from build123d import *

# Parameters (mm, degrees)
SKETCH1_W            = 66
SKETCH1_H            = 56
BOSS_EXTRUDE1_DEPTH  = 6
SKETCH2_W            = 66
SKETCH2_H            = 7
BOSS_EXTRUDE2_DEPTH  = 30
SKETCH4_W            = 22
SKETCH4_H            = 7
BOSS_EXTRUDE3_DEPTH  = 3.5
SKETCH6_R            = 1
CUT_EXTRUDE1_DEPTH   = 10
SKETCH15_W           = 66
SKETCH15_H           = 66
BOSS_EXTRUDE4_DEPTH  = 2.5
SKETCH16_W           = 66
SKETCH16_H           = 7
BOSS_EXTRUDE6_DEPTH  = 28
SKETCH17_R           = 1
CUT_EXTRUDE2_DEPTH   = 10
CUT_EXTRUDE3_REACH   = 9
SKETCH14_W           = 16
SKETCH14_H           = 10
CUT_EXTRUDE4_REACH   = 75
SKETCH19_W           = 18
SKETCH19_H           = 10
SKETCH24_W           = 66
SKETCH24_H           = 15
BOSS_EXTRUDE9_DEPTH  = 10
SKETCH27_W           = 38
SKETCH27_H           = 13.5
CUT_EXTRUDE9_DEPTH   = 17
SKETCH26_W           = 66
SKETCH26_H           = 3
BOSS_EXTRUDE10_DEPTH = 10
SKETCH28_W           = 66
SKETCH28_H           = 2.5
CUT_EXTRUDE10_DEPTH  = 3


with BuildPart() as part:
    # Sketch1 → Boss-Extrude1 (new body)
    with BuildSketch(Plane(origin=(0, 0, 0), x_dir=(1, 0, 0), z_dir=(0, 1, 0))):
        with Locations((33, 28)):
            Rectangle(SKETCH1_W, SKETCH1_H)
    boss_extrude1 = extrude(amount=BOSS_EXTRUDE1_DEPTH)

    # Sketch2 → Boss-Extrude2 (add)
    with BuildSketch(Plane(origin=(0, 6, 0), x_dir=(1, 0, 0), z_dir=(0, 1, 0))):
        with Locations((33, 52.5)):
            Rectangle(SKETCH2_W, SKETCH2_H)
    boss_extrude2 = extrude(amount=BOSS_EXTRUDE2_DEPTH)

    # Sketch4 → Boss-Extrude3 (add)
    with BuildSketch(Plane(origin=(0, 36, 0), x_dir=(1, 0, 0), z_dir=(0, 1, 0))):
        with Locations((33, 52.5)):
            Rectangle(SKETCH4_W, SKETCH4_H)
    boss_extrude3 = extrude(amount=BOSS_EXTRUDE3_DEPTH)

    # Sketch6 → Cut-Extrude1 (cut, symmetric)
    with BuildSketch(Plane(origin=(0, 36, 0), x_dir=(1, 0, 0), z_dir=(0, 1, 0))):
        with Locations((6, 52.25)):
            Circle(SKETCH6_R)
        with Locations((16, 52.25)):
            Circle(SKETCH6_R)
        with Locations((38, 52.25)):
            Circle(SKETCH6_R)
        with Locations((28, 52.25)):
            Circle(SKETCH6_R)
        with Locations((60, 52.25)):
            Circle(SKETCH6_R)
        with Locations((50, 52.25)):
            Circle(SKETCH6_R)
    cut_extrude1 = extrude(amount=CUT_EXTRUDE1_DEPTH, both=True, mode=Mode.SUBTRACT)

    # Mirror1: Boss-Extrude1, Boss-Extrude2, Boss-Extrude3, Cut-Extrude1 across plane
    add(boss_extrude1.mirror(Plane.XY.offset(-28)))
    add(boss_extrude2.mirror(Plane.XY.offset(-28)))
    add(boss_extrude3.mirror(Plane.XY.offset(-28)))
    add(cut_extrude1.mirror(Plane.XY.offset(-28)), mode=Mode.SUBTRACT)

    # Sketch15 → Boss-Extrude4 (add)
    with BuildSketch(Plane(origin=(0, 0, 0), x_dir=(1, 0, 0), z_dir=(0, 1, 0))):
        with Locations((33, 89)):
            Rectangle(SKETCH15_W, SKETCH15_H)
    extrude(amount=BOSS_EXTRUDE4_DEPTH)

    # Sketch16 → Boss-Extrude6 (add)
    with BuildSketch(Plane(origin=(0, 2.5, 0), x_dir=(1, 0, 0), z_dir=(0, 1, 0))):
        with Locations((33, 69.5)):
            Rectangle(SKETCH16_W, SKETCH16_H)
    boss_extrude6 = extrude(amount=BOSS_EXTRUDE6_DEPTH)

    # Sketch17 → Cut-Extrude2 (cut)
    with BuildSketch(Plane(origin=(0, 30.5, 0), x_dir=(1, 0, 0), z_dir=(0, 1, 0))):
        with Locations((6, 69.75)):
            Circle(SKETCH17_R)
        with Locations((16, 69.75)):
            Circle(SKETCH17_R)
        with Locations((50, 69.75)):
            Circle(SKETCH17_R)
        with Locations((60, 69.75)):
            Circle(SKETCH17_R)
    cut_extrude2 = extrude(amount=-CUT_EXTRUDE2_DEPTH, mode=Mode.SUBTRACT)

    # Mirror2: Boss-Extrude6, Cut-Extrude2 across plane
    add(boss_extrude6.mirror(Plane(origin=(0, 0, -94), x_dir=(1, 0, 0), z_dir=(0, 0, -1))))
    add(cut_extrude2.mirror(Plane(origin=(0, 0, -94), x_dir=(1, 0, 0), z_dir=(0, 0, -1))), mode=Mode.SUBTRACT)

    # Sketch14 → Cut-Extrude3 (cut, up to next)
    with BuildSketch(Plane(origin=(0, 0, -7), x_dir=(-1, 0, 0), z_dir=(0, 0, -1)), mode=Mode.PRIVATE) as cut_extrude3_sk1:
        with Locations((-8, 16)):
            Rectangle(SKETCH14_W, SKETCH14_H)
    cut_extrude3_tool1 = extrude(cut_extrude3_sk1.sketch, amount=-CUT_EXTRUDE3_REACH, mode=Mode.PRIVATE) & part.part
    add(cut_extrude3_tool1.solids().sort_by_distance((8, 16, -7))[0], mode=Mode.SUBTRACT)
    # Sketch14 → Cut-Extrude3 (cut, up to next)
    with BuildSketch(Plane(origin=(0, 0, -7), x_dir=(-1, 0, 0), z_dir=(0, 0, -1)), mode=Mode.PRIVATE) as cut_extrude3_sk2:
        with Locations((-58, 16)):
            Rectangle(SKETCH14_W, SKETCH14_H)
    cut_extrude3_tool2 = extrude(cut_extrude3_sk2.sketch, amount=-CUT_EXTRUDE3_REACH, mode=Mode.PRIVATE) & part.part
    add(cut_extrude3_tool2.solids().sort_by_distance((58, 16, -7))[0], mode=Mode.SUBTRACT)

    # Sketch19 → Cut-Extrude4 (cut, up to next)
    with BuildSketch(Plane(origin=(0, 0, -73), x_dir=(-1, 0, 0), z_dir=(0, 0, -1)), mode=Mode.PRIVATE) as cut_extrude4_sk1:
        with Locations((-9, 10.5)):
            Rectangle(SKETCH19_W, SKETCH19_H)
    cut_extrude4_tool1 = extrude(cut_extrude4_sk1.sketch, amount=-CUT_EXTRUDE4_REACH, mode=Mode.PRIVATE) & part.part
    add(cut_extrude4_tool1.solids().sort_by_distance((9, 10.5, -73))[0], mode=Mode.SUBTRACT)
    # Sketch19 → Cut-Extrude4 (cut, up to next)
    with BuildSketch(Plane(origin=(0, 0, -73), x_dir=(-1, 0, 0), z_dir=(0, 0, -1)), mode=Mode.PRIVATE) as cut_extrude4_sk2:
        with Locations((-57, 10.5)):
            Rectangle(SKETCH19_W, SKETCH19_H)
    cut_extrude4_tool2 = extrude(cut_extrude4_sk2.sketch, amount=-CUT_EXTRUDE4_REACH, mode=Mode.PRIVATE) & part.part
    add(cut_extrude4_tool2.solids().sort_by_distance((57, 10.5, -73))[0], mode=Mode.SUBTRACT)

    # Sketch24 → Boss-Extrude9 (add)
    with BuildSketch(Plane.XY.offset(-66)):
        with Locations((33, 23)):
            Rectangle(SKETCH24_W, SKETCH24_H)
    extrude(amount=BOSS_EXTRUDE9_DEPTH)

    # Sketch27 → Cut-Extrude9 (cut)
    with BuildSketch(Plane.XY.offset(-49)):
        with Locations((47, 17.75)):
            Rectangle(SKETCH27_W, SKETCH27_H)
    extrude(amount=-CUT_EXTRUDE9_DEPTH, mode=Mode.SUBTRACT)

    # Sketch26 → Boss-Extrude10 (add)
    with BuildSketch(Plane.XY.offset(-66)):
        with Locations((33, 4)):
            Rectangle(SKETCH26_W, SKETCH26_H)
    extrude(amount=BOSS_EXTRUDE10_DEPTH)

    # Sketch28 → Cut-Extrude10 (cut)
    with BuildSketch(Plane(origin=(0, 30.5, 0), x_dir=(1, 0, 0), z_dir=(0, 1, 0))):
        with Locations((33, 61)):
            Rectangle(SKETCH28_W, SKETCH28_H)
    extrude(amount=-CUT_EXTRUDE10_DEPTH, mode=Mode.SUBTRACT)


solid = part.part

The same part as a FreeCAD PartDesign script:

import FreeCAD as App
import Part
import Sketcher

doc = App.newDocument("Part")
body = doc.addObject("PartDesign::Body", "Body")

sketch1 = doc.addObject("Sketcher::SketchObject", "Sketch")
body.addObject(sketch1)
sketch1.AttachmentSupport = (doc.XZ_Plane, [""])
sketch1.MapMode = "FlatFace"
sketch1.addGeometry([
    Part.LineSegment(App.Vector(0, -56, 0), App.Vector(0, 0, 0)),
    Part.LineSegment(App.Vector(0, 0, 0), App.Vector(66, 0, 0)),
    Part.LineSegment(App.Vector(66, 0, 0), App.Vector(66, -56, 0)),
    Part.LineSegment(App.Vector(66, -56, 0), App.Vector(0, -56, 0)),
], False)
sketch1.addConstraint([
    Sketcher.Constraint("Coincident", 0, 2, 1, 1),
    Sketcher.Constraint("Coincident", 1, 2, 2, 1),
    Sketcher.Constraint("Coincident", 2, 2, 3, 1),
    Sketcher.Constraint("Coincident", 3, 2, 0, 1),
    Sketcher.Constraint("Vertical", 0),
    Sketcher.Constraint("Horizontal", 1),
    Sketcher.Constraint("Vertical", 2),
    Sketcher.Constraint("Horizontal", 3),
    Sketcher.Constraint("Coincident", 0, 2, -1, 1),
    Sketcher.Constraint("DistanceX", 1, 1, 1, 2, 66.0),
    Sketcher.Constraint("DistanceY", 0, 1, 0, 2, 56.0),
])
pad1 = doc.addObject("PartDesign::Pad", "Pad")
body.addObject(pad1)
pad1.Profile = sketch1
pad1.Length = 6
pad1.Reversed = True

sketch2 = doc.addObject("Sketcher::SketchObject", "Sketch001")
body.addObject(sketch2)
sketch2.AttachmentSupport = (doc.XZ_Plane, [""])
sketch2.MapMode = "FlatFace"
sketch2.AttachmentOffset = App.Placement(App.Vector(0, 0, -6), App.Rotation())
sketch2.addGeometry([
    Part.LineSegment(App.Vector(0, -56, 0), App.Vector(0, -49, 0)),
    Part.LineSegment(App.Vector(0, -49, 0), App.Vector(66, -49, 0)),
    Part.LineSegment(App.Vector(66, -49, 0), App.Vector(66, -56, 0)),
    Part.LineSegment(App.Vector(66, -56, 0), App.Vector(0, -56, 0)),
], False)
sketch2.addConstraint([
    Sketcher.Constraint("Coincident", 0, 2, 1, 1),
    Sketcher.Constraint("Coincident", 1, 2, 2, 1),
    Sketcher.Constraint("Coincident", 2, 2, 3, 1),
    Sketcher.Constraint("Coincident", 3, 2, 0, 1),
    Sketcher.Constraint("Vertical", 0),
    Sketcher.Constraint("Horizontal", 1),
    Sketcher.Constraint("Vertical", 2),
    Sketcher.Constraint("Horizontal", 3),
    Sketcher.Constraint("PointOnObject", 0, 2, -2),
    Sketcher.Constraint("DistanceX", 1, 1, 1, 2, 66.0),
    Sketcher.Constraint("DistanceY", 0, 1, 0, 2, 7.0),
    Sketcher.Constraint("DistanceY", 0, 2, -1, 1, 49.0),
])
pad2 = doc.addObject("PartDesign::Pad", "Pad001")
body.addObject(pad2)
pad2.Profile = sketch2
pad2.Length = 30
pad2.Reversed = True

sketch3 = doc.addObject("Sketcher::SketchObject", "Sketch002")
body.addObject(sketch3)
sketch3.AttachmentSupport = (doc.XZ_Plane, [""])
sketch3.MapMode = "FlatFace"
sketch3.AttachmentOffset = App.Placement(App.Vector(0, 0, -36), App.Rotation())
sketch3.addGeometry([
    Part.LineSegment(App.Vector(22, -56, 0), App.Vector(22, -49, 0)),
    Part.LineSegment(App.Vector(22, -49, 0), App.Vector(44, -49, 0)),
    Part.LineSegment(App.Vector(44, -49, 0), App.Vector(44, -56, 0)),
    Part.LineSegment(App.Vector(44, -56, 0), App.Vector(22, -56, 0)),
], False)
sketch3.addConstraint([
    Sketcher.Constraint("Coincident", 0, 2, 1, 1),
    Sketcher.Constraint("Coincident", 1, 2, 2, 1),
    Sketcher.Constraint("Coincident", 2, 2, 3, 1),
    Sketcher.Constraint("Coincident", 3, 2, 0, 1),
    Sketcher.Constraint("Vertical", 0),
    Sketcher.Constraint("Horizontal", 1),
    Sketcher.Constraint("Vertical", 2),
    Sketcher.Constraint("Horizontal", 3),
    Sketcher.Constraint("DistanceX", 1, 1, 1, 2, 22.0),
    Sketcher.Constraint("DistanceY", 0, 1, 0, 2, 7.0),
    Sketcher.Constraint("DistanceX", -1, 1, 0, 2, 22.0),
    Sketcher.Constraint("DistanceY", 0, 2, -1, 1, 49.0),
])
pad3 = doc.addObject("PartDesign::Pad", "Pad002")
body.addObject(pad3)
pad3.Profile = sketch3
pad3.Length = 3.5
pad3.Reversed = True

sketch4 = doc.addObject("Sketcher::SketchObject", "Sketch003")
body.addObject(sketch4)
sketch4.AttachmentSupport = (doc.XZ_Plane, [""])
sketch4.MapMode = "FlatFace"
sketch4.AttachmentOffset = App.Placement(App.Vector(0, 0, -36), App.Rotation())
sketch4.addGeometry([
    Part.Circle(App.Vector(6, -52.25, 0), App.Vector(0, 0, 1), 1),
    Part.Circle(App.Vector(16, -52.25, 0), App.Vector(0, 0, 1), 1),
    Part.Circle(App.Vector(38, -52.25, 0), App.Vector(0, 0, 1), 1),
    Part.Circle(App.Vector(28, -52.25, 0), App.Vector(0, 0, 1), 1),
    Part.Circle(App.Vector(60, -52.25, 0), App.Vector(0, 0, 1), 1),
    Part.Circle(App.Vector(50, -52.25, 0), App.Vector(0, 0, 1), 1),
], False)
sketch4.addConstraint([
    Sketcher.Constraint("Equal", 0, 1),
    Sketcher.Constraint("Equal", 1, 2),
    Sketcher.Constraint("Equal", 2, 3),
    Sketcher.Constraint("Equal", 3, 4),
    Sketcher.Constraint("Equal", 4, 5),
    Sketcher.Constraint("Horizontal", 0, 3, 1, 3),
    Sketcher.Constraint("Horizontal", 1, 3, 2, 3),
    Sketcher.Constraint("Horizontal", 2, 3, 3, 3),
    Sketcher.Constraint("Horizontal", 3, 3, 4, 3),
    Sketcher.Constraint("Horizontal", 4, 3, 5, 3),
    Sketcher.Constraint("Diameter", 0, 2.0),
    Sketcher.Constraint("DistanceX", -1, 1, 0, 3, 6.0),
    Sketcher.Constraint("DistanceX", -1, 1, 1, 3, 16.0),
    Sketcher.Constraint("DistanceX", -1, 1, 2, 3, 38.0),
    Sketcher.Constraint("DistanceX", -1, 1, 3, 3, 28.0),
    Sketcher.Constraint("DistanceX", -1, 1, 4, 3, 60.0),
    Sketcher.Constraint("DistanceX", -1, 1, 5, 3, 50.0),
    Sketcher.Constraint("DistanceY", 0, 3, -1, 1, 52.25),
])
pocket1 = doc.addObject("PartDesign::Pocket", "Pocket")
body.addObject(pocket1)
pocket1.Profile = sketch4
pocket1.Length = 20
pocket1.Midplane = True
doc.recompute()

datumplane = doc.addObject("PartDesign::Plane", "DatumPlane")
body.addObject(datumplane)
datumplane.AttachmentSupport = (doc.XY_Plane, [""])
datumplane.MapMode = "FlatFace"
datumplane.AttachmentOffset = App.Placement(App.Vector(0, 0, -28), App.Rotation())
mirrored = doc.addObject("PartDesign::Mirrored", "Mirrored")
body.addObject(mirrored)
mirrored.Originals = [pad1, pad2, pad3, pocket1]
mirrored.MirrorPlane = (datumplane, [""])
body.Tip = mirrored

sketch5 = doc.addObject("Sketcher::SketchObject", "Sketch004")
body.addObject(sketch5)
sketch5.AttachmentSupport = (doc.XZ_Plane, [""])
sketch5.MapMode = "FlatFace"
sketch5.addGeometry([
    Part.LineSegment(App.Vector(0, -122, 0), App.Vector(0, -56, 0)),
    Part.LineSegment(App.Vector(0, -56, 0), App.Vector(66, -56, 0)),
    Part.LineSegment(App.Vector(66, -56, 0), App.Vector(66, -122, 0)),
    Part.LineSegment(App.Vector(66, -122, 0), App.Vector(0, -122, 0)),
], False)
sketch5.addConstraint([
    Sketcher.Constraint("Coincident", 0, 2, 1, 1),
    Sketcher.Constraint("Coincident", 1, 2, 2, 1),
    Sketcher.Constraint("Coincident", 2, 2, 3, 1),
    Sketcher.Constraint("Coincident", 3, 2, 0, 1),
    Sketcher.Constraint("Vertical", 0),
    Sketcher.Constraint("Horizontal", 1),
    Sketcher.Constraint("Vertical", 2),
    Sketcher.Constraint("Horizontal", 3),
    Sketcher.Constraint("PointOnObject", 0, 2, -2),
    Sketcher.Constraint("Equal", 3, 0),
    Sketcher.Constraint("DistanceX", 1, 1, 1, 2, 66.0),
    Sketcher.Constraint("DistanceY", 0, 2, -1, 1, 56.0),
])
pad4 = doc.addObject("PartDesign::Pad", "Pad003")
body.addObject(pad4)
pad4.Profile = sketch5
pad4.Length = 2.5
pad4.Reversed = True

sketch6 = doc.addObject("Sketcher::SketchObject", "Sketch005")
body.addObject(sketch6)
sketch6.AttachmentSupport = (doc.XZ_Plane, [""])
sketch6.MapMode = "FlatFace"
sketch6.AttachmentOffset = App.Placement(App.Vector(0, 0, -2.5), App.Rotation())
sketch6.addGeometry([
    Part.LineSegment(App.Vector(0, -73, 0), App.Vector(0, -66, 0)),
    Part.LineSegment(App.Vector(0, -66, 0), App.Vector(66, -66, 0)),
    Part.LineSegment(App.Vector(66, -66, 0), App.Vector(66, -73, 0)),
    Part.LineSegment(App.Vector(66, -73, 0), App.Vector(0, -73, 0)),
], False)
sketch6.addConstraint([
    Sketcher.Constraint("Coincident", 0, 2, 1, 1),
    Sketcher.Constraint("Coincident", 1, 2, 2, 1),
    Sketcher.Constraint("Coincident", 2, 2, 3, 1),
    Sketcher.Constraint("Coincident", 3, 2, 0, 1),
    Sketcher.Constraint("Vertical", 0),
    Sketcher.Constraint("Horizontal", 1),
    Sketcher.Constraint("Vertical", 2),
    Sketcher.Constraint("Horizontal", 3),
    Sketcher.Constraint("PointOnObject", 0, 2, -2),
    Sketcher.Constraint("DistanceX", 1, 1, 1, 2, 66.0),
    Sketcher.Constraint("DistanceY", 0, 1, 0, 2, 7.0),
    Sketcher.Constraint("DistanceY", 0, 2, -1, 1, 66.0),
])
pad5 = doc.addObject("PartDesign::Pad", "Pad004")
body.addObject(pad5)
pad5.Profile = sketch6
pad5.Length = 28
pad5.Reversed = True

sketch7 = doc.addObject("Sketcher::SketchObject", "Sketch006")
body.addObject(sketch7)
sketch7.AttachmentSupport = (doc.XZ_Plane, [""])
sketch7.MapMode = "FlatFace"
sketch7.AttachmentOffset = App.Placement(App.Vector(0, 0, -30.5), App.Rotation())
sketch7.addGeometry([
    Part.Circle(App.Vector(6, -69.75, 0), App.Vector(0, 0, 1), 1),
    Part.Circle(App.Vector(16, -69.75, 0), App.Vector(0, 0, 1), 1),
    Part.Circle(App.Vector(50, -69.75, 0), App.Vector(0, 0, 1), 1),
    Part.Circle(App.Vector(60, -69.75, 0), App.Vector(0, 0, 1), 1),
], False)
sketch7.addConstraint([
    Sketcher.Constraint("Equal", 0, 1),
    Sketcher.Constraint("Equal", 1, 2),
    Sketcher.Constraint("Equal", 2, 3),
    Sketcher.Constraint("Horizontal", 0, 3, 1, 3),
    Sketcher.Constraint("Horizontal", 1, 3, 2, 3),
    Sketcher.Constraint("Horizontal", 2, 3, 3, 3),
    Sketcher.Constraint("Diameter", 0, 2.0),
    Sketcher.Constraint("DistanceX", -1, 1, 0, 3, 6.0),
    Sketcher.Constraint("DistanceX", -1, 1, 1, 3, 16.0),
    Sketcher.Constraint("DistanceX", -1, 1, 2, 3, 50.0),
    Sketcher.Constraint("DistanceX", -1, 1, 3, 3, 60.0),
    Sketcher.Constraint("DistanceY", 0, 3, -1, 1, 69.75),
])
pocket2 = doc.addObject("PartDesign::Pocket", "Pocket001")
body.addObject(pocket2)
pocket2.Profile = sketch7
pocket2.Length = 10
pocket2.Reversed = True
doc.recompute()

datumplane2 = doc.addObject("PartDesign::Plane", "DatumPlane001")
body.addObject(datumplane2)
datumplane2.AttachmentSupport = (doc.XY_Plane, [""])
datumplane2.MapMode = "FlatFace"
datumplane2.AttachmentOffset = App.Placement(App.Vector(0, 0, -94), App.Rotation())
mirrored2 = doc.addObject("PartDesign::Mirrored", "Mirrored001")
body.addObject(mirrored2)
mirrored2.Originals = [pad5, pocket2]
mirrored2.MirrorPlane = (datumplane2, [""])
body.Tip = mirrored2

sketch8 = doc.addObject("Sketcher::SketchObject", "Sketch007")
body.addObject(sketch8)
sketch8.AttachmentSupport = (doc.XY_Plane, [""])
sketch8.MapMode = "FlatFace"
sketch8.AttachmentOffset = App.Placement(App.Vector(0, 0, -7), App.Rotation())
sketch8.addGeometry([
    Part.LineSegment(App.Vector(16, 21, 0), App.Vector(16, 11, 0)),
    Part.LineSegment(App.Vector(16, 11, 0), App.Vector(0, 11, 0)),
    Part.LineSegment(App.Vector(0, 11, 0), App.Vector(0, 21, 0)),
    Part.LineSegment(App.Vector(0, 21, 0), App.Vector(16, 21, 0)),
], False)
sketch8.addConstraint([
    Sketcher.Constraint("Coincident", 0, 2, 1, 1),
    Sketcher.Constraint("Coincident", 1, 2, 2, 1),
    Sketcher.Constraint("Coincident", 2, 2, 3, 1),
    Sketcher.Constraint("Coincident", 3, 2, 0, 1),
    Sketcher.Constraint("Vertical", 0),
    Sketcher.Constraint("Horizontal", 1),
    Sketcher.Constraint("Vertical", 2),
    Sketcher.Constraint("Horizontal", 3),
    Sketcher.Constraint("PointOnObject", 1, 2, -2),
    Sketcher.Constraint("DistanceX", 1, 2, 1, 1, 16.0),
    Sketcher.Constraint("DistanceY", 0, 2, 0, 1, 10.0),
    Sketcher.Constraint("DistanceY", -1, 1, 0, 2, 11.0),
])
pocket3 = doc.addObject("PartDesign::Pocket", "Pocket002")
body.addObject(pocket3)
pocket3.Profile = sketch8
pocket3.Type = "UpToFirst"
pocket3.Reversed = True

sketch9 = doc.addObject("Sketcher::SketchObject", "Sketch008")
body.addObject(sketch9)
sketch9.AttachmentSupport = (doc.XY_Plane, [""])
sketch9.MapMode = "FlatFace"
sketch9.AttachmentOffset = App.Placement(App.Vector(0, 0, -7), App.Rotation())
sketch9.addGeometry([
    Part.LineSegment(App.Vector(66, 21, 0), App.Vector(66, 11, 0)),
    Part.LineSegment(App.Vector(66, 11, 0), App.Vector(50, 11, 0)),
    Part.LineSegment(App.Vector(50, 11, 0), App.Vector(50, 21, 0)),
    Part.LineSegment(App.Vector(50, 21, 0), App.Vector(66, 21, 0)),
], False)
sketch9.addConstraint([
    Sketcher.Constraint("Coincident", 0, 2, 1, 1),
    Sketcher.Constraint("Coincident", 1, 2, 2, 1),
    Sketcher.Constraint("Coincident", 2, 2, 3, 1),
    Sketcher.Constraint("Coincident", 3, 2, 0, 1),
    Sketcher.Constraint("Vertical", 0),
    Sketcher.Constraint("Horizontal", 1),
    Sketcher.Constraint("Vertical", 2),
    Sketcher.Constraint("Horizontal", 3),
    Sketcher.Constraint("DistanceX", 1, 2, 1, 1, 16.0),
    Sketcher.Constraint("DistanceY", 0, 2, 0, 1, 10.0),
    Sketcher.Constraint("DistanceX", -1, 1, 0, 2, 66.0),
    Sketcher.Constraint("DistanceY", -1, 1, 0, 2, 11.0),
])
pocket4 = doc.addObject("PartDesign::Pocket", "Pocket003")
body.addObject(pocket4)
pocket4.Profile = sketch9
pocket4.Type = "UpToFirst"
pocket4.Reversed = True

sketch10 = doc.addObject("Sketcher::SketchObject", "Sketch009")
body.addObject(sketch10)
sketch10.AttachmentSupport = (doc.XY_Plane, [""])
sketch10.MapMode = "FlatFace"
sketch10.AttachmentOffset = App.Placement(App.Vector(0, 0, -73), App.Rotation())
sketch10.addGeometry([
    Part.LineSegment(App.Vector(18, 15.5, 0), App.Vector(18, 5.5, 0)),
    Part.LineSegment(App.Vector(18, 5.5, 0), App.Vector(0, 5.5, 0)),
    Part.LineSegment(App.Vector(0, 5.5, 0), App.Vector(0, 15.5, 0)),
    Part.LineSegment(App.Vector(0, 15.5, 0), App.Vector(18, 15.5, 0)),
], False)
sketch10.addConstraint([
    Sketcher.Constraint("Coincident", 0, 2, 1, 1),
    Sketcher.Constraint("Coincident", 1, 2, 2, 1),
    Sketcher.Constraint("Coincident", 2, 2, 3, 1),
    Sketcher.Constraint("Coincident", 3, 2, 0, 1),
    Sketcher.Constraint("Vertical", 0),
    Sketcher.Constraint("Horizontal", 1),
    Sketcher.Constraint("Vertical", 2),
    Sketcher.Constraint("Horizontal", 3),
    Sketcher.Constraint("PointOnObject", 1, 2, -2),
    Sketcher.Constraint("DistanceX", 1, 2, 1, 1, 18.0),
    Sketcher.Constraint("DistanceY", 0, 2, 0, 1, 10.0),
    Sketcher.Constraint("DistanceY", -1, 1, 0, 2, 5.5),
])
pocket5 = doc.addObject("PartDesign::Pocket", "Pocket004")
body.addObject(pocket5)
pocket5.Profile = sketch10
pocket5.Type = "UpToFirst"
pocket5.Reversed = True

sketch11 = doc.addObject("Sketcher::SketchObject", "Sketch010")
body.addObject(sketch11)
sketch11.AttachmentSupport = (doc.XY_Plane, [""])
sketch11.MapMode = "FlatFace"
sketch11.AttachmentOffset = App.Placement(App.Vector(0, 0, -73), App.Rotation())
sketch11.addGeometry([
    Part.LineSegment(App.Vector(66, 15.5, 0), App.Vector(66, 5.5, 0)),
    Part.LineSegment(App.Vector(66, 5.5, 0), App.Vector(48, 5.5, 0)),
    Part.LineSegment(App.Vector(48, 5.5, 0), App.Vector(48, 15.5, 0)),
    Part.LineSegment(App.Vector(48, 15.5, 0), App.Vector(66, 15.5, 0)),
], False)
sketch11.addConstraint([
    Sketcher.Constraint("Coincident", 0, 2, 1, 1),
    Sketcher.Constraint("Coincident", 1, 2, 2, 1),
    Sketcher.Constraint("Coincident", 2, 2, 3, 1),
    Sketcher.Constraint("Coincident", 3, 2, 0, 1),
    Sketcher.Constraint("Vertical", 0),
    Sketcher.Constraint("Horizontal", 1),
    Sketcher.Constraint("Vertical", 2),
    Sketcher.Constraint("Horizontal", 3),
    Sketcher.Constraint("DistanceX", 1, 2, 1, 1, 18.0),
    Sketcher.Constraint("DistanceY", 0, 2, 0, 1, 10.0),
    Sketcher.Constraint("DistanceX", -1, 1, 0, 2, 66.0),
    Sketcher.Constraint("DistanceY", -1, 1, 0, 2, 5.5),
])
pocket6 = doc.addObject("PartDesign::Pocket", "Pocket005")
body.addObject(pocket6)
pocket6.Profile = sketch11
pocket6.Type = "UpToFirst"
pocket6.Reversed = True

sketch12 = doc.addObject("Sketcher::SketchObject", "Sketch011")
body.addObject(sketch12)
sketch12.AttachmentSupport = (doc.XY_Plane, [""])
sketch12.MapMode = "FlatFace"
sketch12.AttachmentOffset = App.Placement(App.Vector(0, 0, -66), App.Rotation())
sketch12.addGeometry([
    Part.LineSegment(App.Vector(0, 30.5, 0), App.Vector(0, 15.5, 0)),
    Part.LineSegment(App.Vector(0, 15.5, 0), App.Vector(66, 15.5, 0)),
    Part.LineSegment(App.Vector(66, 15.5, 0), App.Vector(66, 30.5, 0)),
    Part.LineSegment(App.Vector(66, 30.5, 0), App.Vector(0, 30.5, 0)),
], False)
sketch12.addConstraint([
    Sketcher.Constraint("Coincident", 0, 2, 1, 1),
    Sketcher.Constraint("Coincident", 1, 2, 2, 1),
    Sketcher.Constraint("Coincident", 2, 2, 3, 1),
    Sketcher.Constraint("Coincident", 3, 2, 0, 1),
    Sketcher.Constraint("Vertical", 0),
    Sketcher.Constraint("Horizontal", 1),
    Sketcher.Constraint("Vertical", 2),
    Sketcher.Constraint("Horizontal", 3),
    Sketcher.Constraint("PointOnObject", 0, 2, -2),
    Sketcher.Constraint("DistanceX", 1, 1, 1, 2, 66.0),
    Sketcher.Constraint("DistanceY", 0, 2, 0, 1, 15.0),
    Sketcher.Constraint("DistanceY", -1, 1, 0, 2, 15.5),
])
pad6 = doc.addObject("PartDesign::Pad", "Pad005")
body.addObject(pad6)
pad6.Profile = sketch12
pad6.Length = 10

sketch13 = doc.addObject("Sketcher::SketchObject", "Sketch012")
body.addObject(sketch13)
sketch13.AttachmentSupport = (doc.XY_Plane, [""])
sketch13.MapMode = "FlatFace"
sketch13.AttachmentOffset = App.Placement(App.Vector(0, 0, -49), App.Rotation())
sketch13.addGeometry([
    Part.LineSegment(App.Vector(28, 24.5, 0), App.Vector(28, 11, 0)),
    Part.LineSegment(App.Vector(28, 11, 0), App.Vector(66, 11, 0)),
    Part.LineSegment(App.Vector(66, 11, 0), App.Vector(66, 24.5, 0)),
    Part.LineSegment(App.Vector(66, 24.5, 0), App.Vector(28, 24.5, 0)),
], False)
sketch13.addConstraint([
    Sketcher.Constraint("Coincident", 0, 2, 1, 1),
    Sketcher.Constraint("Coincident", 1, 2, 2, 1),
    Sketcher.Constraint("Coincident", 2, 2, 3, 1),
    Sketcher.Constraint("Coincident", 3, 2, 0, 1),
    Sketcher.Constraint("Vertical", 0),
    Sketcher.Constraint("Horizontal", 1),
    Sketcher.Constraint("Vertical", 2),
    Sketcher.Constraint("Horizontal", 3),
    Sketcher.Constraint("DistanceX", 1, 1, 1, 2, 38.0),
    Sketcher.Constraint("DistanceY", 0, 2, 0, 1, 13.5),
    Sketcher.Constraint("DistanceX", -1, 1, 0, 2, 28.0),
    Sketcher.Constraint("DistanceY", -1, 1, 0, 2, 11.0),
])
pocket7 = doc.addObject("PartDesign::Pocket", "Pocket006")
body.addObject(pocket7)
pocket7.Profile = sketch13
pocket7.Length = 17

sketch14 = doc.addObject("Sketcher::SketchObject", "Sketch013")
body.addObject(sketch14)
sketch14.AttachmentSupport = (doc.XY_Plane, [""])
sketch14.MapMode = "FlatFace"
sketch14.AttachmentOffset = App.Placement(App.Vector(0, 0, -66), App.Rotation())
sketch14.addGeometry([
    Part.LineSegment(App.Vector(0, 5.5, 0), App.Vector(0, 2.5, 0)),
    Part.LineSegment(App.Vector(0, 2.5, 0), App.Vector(66, 2.5, 0)),
    Part.LineSegment(App.Vector(66, 2.5, 0), App.Vector(66, 5.5, 0)),
    Part.LineSegment(App.Vector(66, 5.5, 0), App.Vector(0, 5.5, 0)),
], False)
sketch14.addConstraint([
    Sketcher.Constraint("Coincident", 0, 2, 1, 1),
    Sketcher.Constraint("Coincident", 1, 2, 2, 1),
    Sketcher.Constraint("Coincident", 2, 2, 3, 1),
    Sketcher.Constraint("Coincident", 3, 2, 0, 1),
    Sketcher.Constraint("Vertical", 0),
    Sketcher.Constraint("Horizontal", 1),
    Sketcher.Constraint("Vertical", 2),
    Sketcher.Constraint("Horizontal", 3),
    Sketcher.Constraint("PointOnObject", 0, 2, -2),
    Sketcher.Constraint("DistanceX", 1, 1, 1, 2, 66.0),
    Sketcher.Constraint("DistanceY", 0, 2, 0, 1, 3.0),
    Sketcher.Constraint("DistanceY", -1, 1, 0, 2, 2.5),
])
pad7 = doc.addObject("PartDesign::Pad", "Pad006")
body.addObject(pad7)
pad7.Profile = sketch14
pad7.Length = 10

sketch15 = doc.addObject("Sketcher::SketchObject", "Sketch014")
body.addObject(sketch15)
sketch15.AttachmentSupport = (doc.XZ_Plane, [""])
sketch15.MapMode = "FlatFace"
sketch15.AttachmentOffset = App.Placement(App.Vector(0, 0, -30.5), App.Rotation())
sketch15.addGeometry([
    Part.LineSegment(App.Vector(0, -62.25, 0), App.Vector(0, -59.75, 0)),
    Part.LineSegment(App.Vector(0, -59.75, 0), App.Vector(66, -59.75, 0)),
    Part.LineSegment(App.Vector(66, -59.75, 0), App.Vector(66, -62.25, 0)),
    Part.LineSegment(App.Vector(66, -62.25, 0), App.Vector(0, -62.25, 0)),
], False)
sketch15.addConstraint([
    Sketcher.Constraint("Coincident", 0, 2, 1, 1),
    Sketcher.Constraint("Coincident", 1, 2, 2, 1),
    Sketcher.Constraint("Coincident", 2, 2, 3, 1),
    Sketcher.Constraint("Coincident", 3, 2, 0, 1),
    Sketcher.Constraint("Vertical", 0),
    Sketcher.Constraint("Horizontal", 1),
    Sketcher.Constraint("Vertical", 2),
    Sketcher.Constraint("Horizontal", 3),
    Sketcher.Constraint("PointOnObject", 0, 2, -2),
    Sketcher.Constraint("DistanceX", 1, 1, 1, 2, 66.0),
    Sketcher.Constraint("DistanceY", 0, 1, 0, 2, 2.5),
    Sketcher.Constraint("DistanceY", 0, 2, -1, 1, 59.75),
])
pocket8 = doc.addObject("PartDesign::Pocket", "Pocket007")
body.addObject(pocket8)
pocket8.Profile = sketch15
pocket8.Length = 3
pocket8.Reversed = True

doc.recompute()
